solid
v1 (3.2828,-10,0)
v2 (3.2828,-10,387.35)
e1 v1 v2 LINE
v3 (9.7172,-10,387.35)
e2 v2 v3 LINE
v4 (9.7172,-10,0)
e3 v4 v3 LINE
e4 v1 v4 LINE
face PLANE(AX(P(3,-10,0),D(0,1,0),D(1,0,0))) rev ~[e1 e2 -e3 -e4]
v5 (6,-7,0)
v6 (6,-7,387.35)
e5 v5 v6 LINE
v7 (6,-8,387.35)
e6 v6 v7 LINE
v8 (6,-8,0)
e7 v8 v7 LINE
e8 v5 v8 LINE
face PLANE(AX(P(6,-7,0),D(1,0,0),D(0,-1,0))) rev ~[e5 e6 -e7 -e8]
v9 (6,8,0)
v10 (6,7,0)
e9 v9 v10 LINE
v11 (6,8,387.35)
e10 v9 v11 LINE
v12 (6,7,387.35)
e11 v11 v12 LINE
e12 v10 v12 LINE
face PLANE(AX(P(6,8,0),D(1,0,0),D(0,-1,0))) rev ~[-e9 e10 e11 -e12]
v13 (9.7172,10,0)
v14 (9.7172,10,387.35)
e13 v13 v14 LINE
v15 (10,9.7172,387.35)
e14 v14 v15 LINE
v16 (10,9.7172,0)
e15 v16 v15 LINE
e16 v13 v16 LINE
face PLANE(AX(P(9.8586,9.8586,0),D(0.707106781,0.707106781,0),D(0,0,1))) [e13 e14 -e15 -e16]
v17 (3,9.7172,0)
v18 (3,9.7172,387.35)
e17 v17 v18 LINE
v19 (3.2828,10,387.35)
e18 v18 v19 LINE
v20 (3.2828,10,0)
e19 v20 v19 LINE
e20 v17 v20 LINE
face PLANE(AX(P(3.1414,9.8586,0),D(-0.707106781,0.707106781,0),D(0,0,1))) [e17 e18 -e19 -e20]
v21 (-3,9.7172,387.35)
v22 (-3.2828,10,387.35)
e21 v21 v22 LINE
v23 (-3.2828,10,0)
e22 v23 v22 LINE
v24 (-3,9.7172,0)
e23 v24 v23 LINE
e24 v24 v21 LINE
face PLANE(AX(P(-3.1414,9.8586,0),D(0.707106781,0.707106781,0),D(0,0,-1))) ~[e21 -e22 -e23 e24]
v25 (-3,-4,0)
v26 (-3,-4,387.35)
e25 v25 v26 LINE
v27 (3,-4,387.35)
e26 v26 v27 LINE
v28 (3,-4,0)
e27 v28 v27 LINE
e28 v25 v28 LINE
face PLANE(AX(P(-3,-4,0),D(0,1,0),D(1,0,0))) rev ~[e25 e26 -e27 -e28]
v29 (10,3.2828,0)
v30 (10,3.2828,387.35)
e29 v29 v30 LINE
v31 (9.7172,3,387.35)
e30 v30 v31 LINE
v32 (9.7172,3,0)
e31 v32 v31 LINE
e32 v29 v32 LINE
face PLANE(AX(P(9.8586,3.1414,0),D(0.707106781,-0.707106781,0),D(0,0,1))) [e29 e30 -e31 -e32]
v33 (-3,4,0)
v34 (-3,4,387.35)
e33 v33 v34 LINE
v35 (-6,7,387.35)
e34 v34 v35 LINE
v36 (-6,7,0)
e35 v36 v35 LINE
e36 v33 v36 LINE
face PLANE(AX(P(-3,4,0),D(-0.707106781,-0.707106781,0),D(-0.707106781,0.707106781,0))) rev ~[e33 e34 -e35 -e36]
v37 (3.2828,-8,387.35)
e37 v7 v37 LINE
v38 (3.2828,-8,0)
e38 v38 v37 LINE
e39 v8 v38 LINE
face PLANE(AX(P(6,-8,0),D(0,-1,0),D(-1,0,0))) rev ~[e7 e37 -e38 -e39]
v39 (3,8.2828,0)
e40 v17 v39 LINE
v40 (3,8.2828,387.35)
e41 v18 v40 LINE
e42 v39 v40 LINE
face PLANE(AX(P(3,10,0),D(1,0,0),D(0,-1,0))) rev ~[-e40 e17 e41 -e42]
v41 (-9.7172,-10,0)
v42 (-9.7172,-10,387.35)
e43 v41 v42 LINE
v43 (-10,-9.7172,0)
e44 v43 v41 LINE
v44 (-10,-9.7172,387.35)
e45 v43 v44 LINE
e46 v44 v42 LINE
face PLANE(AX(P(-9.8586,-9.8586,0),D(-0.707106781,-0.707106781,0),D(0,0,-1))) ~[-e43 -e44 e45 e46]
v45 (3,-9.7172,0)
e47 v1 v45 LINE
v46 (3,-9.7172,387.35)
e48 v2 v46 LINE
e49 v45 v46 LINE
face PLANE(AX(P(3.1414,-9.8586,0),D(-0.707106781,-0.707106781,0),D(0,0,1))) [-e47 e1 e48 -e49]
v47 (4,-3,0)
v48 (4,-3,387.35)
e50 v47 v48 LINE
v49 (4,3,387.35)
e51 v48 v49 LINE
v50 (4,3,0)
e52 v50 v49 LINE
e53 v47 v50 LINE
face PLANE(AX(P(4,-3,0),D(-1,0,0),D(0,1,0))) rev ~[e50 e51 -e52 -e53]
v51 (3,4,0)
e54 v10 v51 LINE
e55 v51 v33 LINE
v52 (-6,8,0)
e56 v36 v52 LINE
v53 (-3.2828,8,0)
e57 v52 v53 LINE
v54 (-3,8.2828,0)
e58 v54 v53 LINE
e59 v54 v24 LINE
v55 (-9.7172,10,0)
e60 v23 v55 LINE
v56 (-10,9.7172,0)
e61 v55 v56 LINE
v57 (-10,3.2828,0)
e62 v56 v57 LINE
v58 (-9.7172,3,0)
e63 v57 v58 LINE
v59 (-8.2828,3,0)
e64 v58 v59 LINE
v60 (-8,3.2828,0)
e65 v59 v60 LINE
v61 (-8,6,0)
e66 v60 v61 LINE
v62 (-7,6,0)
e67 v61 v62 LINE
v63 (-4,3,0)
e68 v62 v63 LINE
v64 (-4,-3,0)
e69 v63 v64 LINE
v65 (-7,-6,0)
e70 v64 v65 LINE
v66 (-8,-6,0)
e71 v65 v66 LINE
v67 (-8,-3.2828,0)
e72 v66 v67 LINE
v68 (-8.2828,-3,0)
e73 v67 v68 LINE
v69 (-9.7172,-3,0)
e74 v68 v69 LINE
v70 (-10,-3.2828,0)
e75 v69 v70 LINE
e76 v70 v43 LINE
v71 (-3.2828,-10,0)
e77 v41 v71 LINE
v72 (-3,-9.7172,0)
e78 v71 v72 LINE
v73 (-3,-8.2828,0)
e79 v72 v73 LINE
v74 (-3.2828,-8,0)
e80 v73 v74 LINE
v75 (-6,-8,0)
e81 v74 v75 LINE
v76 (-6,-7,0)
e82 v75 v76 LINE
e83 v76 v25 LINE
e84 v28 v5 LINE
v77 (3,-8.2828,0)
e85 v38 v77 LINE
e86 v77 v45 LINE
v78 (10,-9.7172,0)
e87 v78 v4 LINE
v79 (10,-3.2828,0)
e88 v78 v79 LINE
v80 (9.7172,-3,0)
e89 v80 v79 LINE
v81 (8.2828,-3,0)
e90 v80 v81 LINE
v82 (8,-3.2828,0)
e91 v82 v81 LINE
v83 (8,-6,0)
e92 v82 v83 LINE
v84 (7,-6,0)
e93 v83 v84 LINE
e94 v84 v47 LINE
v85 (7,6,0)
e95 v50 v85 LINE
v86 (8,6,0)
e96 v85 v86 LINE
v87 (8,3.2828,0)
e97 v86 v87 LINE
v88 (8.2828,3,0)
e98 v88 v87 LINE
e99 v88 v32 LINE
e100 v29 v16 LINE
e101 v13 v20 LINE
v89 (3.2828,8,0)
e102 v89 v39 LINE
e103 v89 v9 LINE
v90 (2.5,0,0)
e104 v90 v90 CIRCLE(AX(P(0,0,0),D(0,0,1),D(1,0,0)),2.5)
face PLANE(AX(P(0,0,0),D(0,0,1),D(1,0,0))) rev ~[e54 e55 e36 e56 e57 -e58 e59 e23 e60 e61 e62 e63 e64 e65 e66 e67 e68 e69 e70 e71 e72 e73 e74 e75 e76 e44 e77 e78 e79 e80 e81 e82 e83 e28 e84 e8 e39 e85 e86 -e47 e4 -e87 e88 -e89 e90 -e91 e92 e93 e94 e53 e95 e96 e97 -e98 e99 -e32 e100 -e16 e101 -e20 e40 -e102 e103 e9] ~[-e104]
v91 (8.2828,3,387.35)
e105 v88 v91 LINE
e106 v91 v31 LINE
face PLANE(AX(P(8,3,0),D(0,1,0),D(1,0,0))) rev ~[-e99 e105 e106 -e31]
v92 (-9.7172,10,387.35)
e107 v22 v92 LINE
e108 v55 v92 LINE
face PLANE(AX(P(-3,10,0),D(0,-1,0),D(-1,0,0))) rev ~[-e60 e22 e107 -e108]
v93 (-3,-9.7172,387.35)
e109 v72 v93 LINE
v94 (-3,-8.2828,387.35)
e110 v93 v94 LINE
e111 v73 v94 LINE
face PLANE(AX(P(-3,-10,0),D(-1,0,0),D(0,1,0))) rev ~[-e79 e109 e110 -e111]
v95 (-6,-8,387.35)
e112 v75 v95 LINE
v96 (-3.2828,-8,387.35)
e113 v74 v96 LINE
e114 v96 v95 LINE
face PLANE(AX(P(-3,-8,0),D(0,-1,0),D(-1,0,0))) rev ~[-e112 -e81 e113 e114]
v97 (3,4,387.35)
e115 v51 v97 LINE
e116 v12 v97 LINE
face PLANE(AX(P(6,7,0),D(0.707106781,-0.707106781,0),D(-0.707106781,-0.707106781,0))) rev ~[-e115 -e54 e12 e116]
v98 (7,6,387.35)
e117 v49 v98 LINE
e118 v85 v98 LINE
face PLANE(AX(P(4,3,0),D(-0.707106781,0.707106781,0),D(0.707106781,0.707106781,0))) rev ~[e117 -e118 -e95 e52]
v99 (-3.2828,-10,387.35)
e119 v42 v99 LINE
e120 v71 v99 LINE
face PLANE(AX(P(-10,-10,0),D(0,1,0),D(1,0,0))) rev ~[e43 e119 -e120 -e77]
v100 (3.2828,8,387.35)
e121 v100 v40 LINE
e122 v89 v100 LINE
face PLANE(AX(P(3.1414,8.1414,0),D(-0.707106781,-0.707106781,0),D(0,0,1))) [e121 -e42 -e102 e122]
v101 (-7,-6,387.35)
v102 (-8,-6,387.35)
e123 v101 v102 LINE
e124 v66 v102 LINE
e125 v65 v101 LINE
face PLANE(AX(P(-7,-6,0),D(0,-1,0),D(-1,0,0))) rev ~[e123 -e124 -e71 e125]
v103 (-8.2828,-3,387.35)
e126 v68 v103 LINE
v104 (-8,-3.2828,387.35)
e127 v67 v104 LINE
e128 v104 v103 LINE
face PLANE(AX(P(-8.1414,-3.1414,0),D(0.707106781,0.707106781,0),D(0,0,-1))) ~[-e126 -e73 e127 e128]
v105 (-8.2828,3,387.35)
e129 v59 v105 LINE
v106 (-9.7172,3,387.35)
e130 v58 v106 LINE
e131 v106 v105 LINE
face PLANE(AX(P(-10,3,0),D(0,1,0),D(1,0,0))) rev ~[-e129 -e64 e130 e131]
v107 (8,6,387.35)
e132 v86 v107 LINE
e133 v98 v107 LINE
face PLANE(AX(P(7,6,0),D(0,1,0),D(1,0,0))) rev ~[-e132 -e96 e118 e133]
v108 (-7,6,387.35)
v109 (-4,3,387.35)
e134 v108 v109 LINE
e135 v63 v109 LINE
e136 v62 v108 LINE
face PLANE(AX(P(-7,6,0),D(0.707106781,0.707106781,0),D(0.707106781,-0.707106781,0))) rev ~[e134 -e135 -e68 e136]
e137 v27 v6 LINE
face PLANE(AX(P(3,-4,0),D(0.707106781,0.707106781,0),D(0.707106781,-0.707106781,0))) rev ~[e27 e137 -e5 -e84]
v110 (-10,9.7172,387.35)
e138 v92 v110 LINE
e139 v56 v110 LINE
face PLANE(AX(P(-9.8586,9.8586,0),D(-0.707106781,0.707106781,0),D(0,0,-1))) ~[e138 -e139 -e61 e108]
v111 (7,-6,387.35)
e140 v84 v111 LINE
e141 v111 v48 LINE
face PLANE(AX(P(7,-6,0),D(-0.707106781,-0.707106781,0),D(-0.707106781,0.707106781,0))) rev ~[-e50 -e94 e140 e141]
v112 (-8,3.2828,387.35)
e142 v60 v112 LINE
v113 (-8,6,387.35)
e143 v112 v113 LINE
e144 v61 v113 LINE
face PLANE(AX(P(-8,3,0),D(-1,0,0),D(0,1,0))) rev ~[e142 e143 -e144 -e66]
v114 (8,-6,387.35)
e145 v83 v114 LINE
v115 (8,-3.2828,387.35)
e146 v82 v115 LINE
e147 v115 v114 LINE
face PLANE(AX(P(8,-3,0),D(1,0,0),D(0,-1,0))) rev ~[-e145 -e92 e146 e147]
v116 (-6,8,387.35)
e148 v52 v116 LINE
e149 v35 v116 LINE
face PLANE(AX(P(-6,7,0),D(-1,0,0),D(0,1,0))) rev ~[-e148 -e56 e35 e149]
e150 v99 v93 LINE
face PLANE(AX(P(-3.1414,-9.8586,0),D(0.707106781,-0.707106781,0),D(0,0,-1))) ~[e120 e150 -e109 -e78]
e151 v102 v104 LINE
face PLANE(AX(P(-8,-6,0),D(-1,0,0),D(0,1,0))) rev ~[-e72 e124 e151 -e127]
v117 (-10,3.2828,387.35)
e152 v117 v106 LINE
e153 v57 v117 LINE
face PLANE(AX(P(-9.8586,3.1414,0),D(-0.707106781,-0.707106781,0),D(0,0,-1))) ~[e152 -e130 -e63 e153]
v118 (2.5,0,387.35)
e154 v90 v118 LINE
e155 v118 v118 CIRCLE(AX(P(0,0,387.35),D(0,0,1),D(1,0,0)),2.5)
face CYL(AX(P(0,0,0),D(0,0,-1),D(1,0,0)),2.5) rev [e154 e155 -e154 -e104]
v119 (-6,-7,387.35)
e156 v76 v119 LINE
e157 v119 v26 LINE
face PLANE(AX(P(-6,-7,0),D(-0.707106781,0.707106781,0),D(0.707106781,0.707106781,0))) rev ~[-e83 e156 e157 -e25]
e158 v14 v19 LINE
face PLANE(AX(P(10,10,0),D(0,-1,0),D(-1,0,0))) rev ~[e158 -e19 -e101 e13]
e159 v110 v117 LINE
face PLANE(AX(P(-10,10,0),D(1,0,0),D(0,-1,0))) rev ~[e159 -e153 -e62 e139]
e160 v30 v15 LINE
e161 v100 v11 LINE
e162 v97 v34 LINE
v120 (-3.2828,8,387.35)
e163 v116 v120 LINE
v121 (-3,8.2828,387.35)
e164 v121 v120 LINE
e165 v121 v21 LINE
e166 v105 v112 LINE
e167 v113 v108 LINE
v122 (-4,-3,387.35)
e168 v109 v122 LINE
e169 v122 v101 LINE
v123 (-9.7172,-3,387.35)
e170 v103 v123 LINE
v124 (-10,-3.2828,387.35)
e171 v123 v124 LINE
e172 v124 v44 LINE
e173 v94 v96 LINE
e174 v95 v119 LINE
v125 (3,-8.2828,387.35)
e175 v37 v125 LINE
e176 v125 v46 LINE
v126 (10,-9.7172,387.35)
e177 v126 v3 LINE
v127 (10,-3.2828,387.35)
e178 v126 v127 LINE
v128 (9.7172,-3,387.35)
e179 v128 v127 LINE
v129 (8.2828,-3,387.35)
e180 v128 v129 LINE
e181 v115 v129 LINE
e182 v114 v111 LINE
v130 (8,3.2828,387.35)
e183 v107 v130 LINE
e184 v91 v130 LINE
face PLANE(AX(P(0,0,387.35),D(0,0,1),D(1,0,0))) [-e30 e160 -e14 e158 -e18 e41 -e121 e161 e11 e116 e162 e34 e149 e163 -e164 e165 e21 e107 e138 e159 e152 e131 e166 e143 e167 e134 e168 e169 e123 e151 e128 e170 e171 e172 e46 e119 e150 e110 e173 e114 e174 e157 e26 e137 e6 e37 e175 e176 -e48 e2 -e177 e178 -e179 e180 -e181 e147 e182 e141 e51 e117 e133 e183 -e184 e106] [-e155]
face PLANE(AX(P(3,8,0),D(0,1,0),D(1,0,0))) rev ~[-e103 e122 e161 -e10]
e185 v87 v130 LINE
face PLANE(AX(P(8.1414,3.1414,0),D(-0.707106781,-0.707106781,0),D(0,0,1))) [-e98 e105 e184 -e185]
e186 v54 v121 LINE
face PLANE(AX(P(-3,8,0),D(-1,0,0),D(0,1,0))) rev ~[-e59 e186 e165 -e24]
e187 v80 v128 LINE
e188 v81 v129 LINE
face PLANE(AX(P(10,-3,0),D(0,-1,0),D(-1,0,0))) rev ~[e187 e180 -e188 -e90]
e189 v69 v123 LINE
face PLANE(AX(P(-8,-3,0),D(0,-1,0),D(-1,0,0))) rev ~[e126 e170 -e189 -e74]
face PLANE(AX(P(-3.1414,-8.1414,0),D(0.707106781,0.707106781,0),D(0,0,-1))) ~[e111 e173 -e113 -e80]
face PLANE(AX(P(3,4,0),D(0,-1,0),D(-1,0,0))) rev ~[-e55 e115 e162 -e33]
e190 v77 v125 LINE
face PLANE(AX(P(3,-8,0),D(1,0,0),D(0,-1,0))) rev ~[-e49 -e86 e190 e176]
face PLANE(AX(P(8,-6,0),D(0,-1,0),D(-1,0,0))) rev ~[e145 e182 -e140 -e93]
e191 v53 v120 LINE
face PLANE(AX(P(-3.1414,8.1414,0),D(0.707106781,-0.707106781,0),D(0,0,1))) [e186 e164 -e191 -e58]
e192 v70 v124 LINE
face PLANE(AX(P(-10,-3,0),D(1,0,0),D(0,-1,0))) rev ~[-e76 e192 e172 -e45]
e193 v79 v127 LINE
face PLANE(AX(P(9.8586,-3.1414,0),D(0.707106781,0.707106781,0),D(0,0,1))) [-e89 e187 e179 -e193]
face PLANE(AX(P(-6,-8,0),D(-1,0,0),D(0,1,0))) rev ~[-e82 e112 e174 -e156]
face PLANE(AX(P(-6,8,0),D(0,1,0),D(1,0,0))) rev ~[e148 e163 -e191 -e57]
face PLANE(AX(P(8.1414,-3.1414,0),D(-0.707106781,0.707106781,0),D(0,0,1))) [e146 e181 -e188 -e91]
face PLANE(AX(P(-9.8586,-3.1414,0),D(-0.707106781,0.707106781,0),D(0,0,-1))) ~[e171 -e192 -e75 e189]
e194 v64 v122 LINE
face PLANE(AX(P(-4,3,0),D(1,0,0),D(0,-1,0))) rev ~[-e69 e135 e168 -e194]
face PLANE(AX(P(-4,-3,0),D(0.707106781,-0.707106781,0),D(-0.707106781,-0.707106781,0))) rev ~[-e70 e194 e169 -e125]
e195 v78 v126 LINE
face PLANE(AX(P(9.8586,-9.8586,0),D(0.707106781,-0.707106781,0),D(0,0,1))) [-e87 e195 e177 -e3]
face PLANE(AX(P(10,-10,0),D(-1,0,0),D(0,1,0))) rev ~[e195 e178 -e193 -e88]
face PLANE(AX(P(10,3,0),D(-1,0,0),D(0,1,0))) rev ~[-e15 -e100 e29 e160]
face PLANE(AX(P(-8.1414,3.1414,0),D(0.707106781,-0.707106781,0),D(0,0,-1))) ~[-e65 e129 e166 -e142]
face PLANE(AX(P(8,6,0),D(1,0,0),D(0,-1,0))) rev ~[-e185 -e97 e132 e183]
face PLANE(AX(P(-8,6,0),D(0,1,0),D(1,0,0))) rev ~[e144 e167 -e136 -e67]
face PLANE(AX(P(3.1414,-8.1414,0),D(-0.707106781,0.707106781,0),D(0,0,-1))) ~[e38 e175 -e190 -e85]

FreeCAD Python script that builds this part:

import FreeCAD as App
import Part
import Sketcher

V = App.Vector
Q = App.Units.Quantity


def edges_at(feature, points):
    """Names of the edges that pass closest to the given points."""
    edges = feature.Shape.Edges
    near = lambda p: min(range(len(edges)), key=lambda i: edges[i].distToShape(Part.Vertex(*p))[0])
    return sorted({f"Edge{near(p) + 1}" for p in points})


def add_polygon(sketch, points):
    """Adds a closed chain of lines whose ends are joined by coincident constraints."""
    first, n = sketch.GeometryCount, len(points)
    for a, b in zip(points, points[1:] + points[:1]):
        sketch.addGeometry(Part.LineSegment(App.Vector(*a, 0), App.Vector(*b, 0)), False)
    for i in range(n):
        sketch.addConstraint(Sketcher.Constraint("Coincident", first + i, 2, first + (i + 1) % n, 1))

doc = App.newDocument("Part")
body = doc.addObject("PartDesign::Body", "Body")

sketch1 = body.newObject("Sketcher::SketchObject", "Sketch")
sketch1.AttachmentSupport = (doc.getObject("XY_Plane"), [""])
sketch1.MapMode = "FlatFace"
add_polygon(sketch1, [(-3, 8), (-3, 10), (-10, 10), (-10, 3), (-8, 3), (-8, 6), (-7, 6), (-4, 3), (-4, -3), (-7, -6), (-8, -6), (-8, -3), (-10, -3), (-10, -10), (-3, -10), (-3, -8), (-6, -8), (-6, -7), (-3, -4), (3, -4), (6, -7), (6, -8), (3, -8), (3, -10), (10, -10), (10, -3), (8, -3), (8, -6), (7, -6), (4, -3), (4, 3), (7, 6), (8, 6), (8, 3), (10, 3), (10, 10), (3, 10), (3, 8), (6, 8), (6, 7), (3, 4), (-3, 4), (-6, 7), (-6, 8)])
sketch1.addGeometry(Part.Circle(V(0, 0, 0), V(0, 0, 1), 2.5), False)
sketch1.addConstraint([
    Sketcher.Constraint("Vertical", 0),
    Sketcher.Constraint("Horizontal", 1),
    Sketcher.Constraint("Vertical", 2),
    Sketcher.Constraint("Horizontal", 3),
    Sketcher.Constraint("Vertical", 4),
    Sketcher.Constraint("Horizontal", 5),
    Sketcher.Constraint("Vertical", 7),
    Sketcher.Constraint("Horizontal", 9),
    Sketcher.Constraint("Vertical", 10),
    Sketcher.Constraint("Horizontal", 11),
    Sketcher.Constraint("Vertical", 12),
    Sketcher.Constraint("Horizontal", 13),
    Sketcher.Constraint("Vertical", 14),
    Sketcher.Constraint("Horizontal", 15),
    Sketcher.Constraint("Vertical", 16),
    Sketcher.Constraint("Horizontal", 18),
    Sketcher.Constraint("Vertical", 20),
    Sketcher.Constraint("Horizontal", 21),
    Sketcher.Constraint("Vertical", 22),
    Sketcher.Constraint("Horizontal", 23),
    Sketcher.Constraint("Vertical", 24),
    Sketcher.Constraint("Horizontal", 25),
    Sketcher.Constraint("Vertical", 26),
    Sketcher.Constraint("Horizontal", 27),
    Sketcher.Constraint("Vertical", 29),
    Sketcher.Constraint("Horizontal", 31),
    Sketcher.Constraint("Vertical", 32),
    Sketcher.Constraint("Horizontal", 33),
    Sketcher.Constraint("Vertical", 34),
    Sketcher.Constraint("Horizontal", 35),
    Sketcher.Constraint("Vertical", 36),
    Sketcher.Constraint("Horizontal", 37),
    Sketcher.Constraint("Vertical", 38),
    Sketcher.Constraint("Horizontal", 40),
    Sketcher.Constraint("Vertical", 42),
    Sketcher.Constraint("Horizontal", 43),
    Sketcher.Constraint("Coincident", 44, 3, -1, 1),
    Sketcher.Constraint("Symmetric", 0, 2, 22, 2, -1, 1),
    Sketcher.Constraint("Symmetric", 2, 2, 24, 2, -1, 1),
    Sketcher.Constraint("Symmetric", 4, 2, 26, 2, -1, 1),
    Sketcher.Constraint("Symmetric", 6, 2, 28, 2, -1, 1),
    Sketcher.Constraint("Symmetric", 8, 2, 30, 2, -1, 1),
    Sketcher.Constraint("Symmetric", 10, 2, 32, 2, -1, 1),
    Sketcher.Constraint("Symmetric", 12, 2, 34, 2, -1, 1),
    Sketcher.Constraint("Symmetric", 14, 2, 36, 2, -1, 1),
    Sketcher.Constraint("Symmetric", 16, 2, 38, 2, -1, 1),
    Sketcher.Constraint("Symmetric", 17, 2, 39, 2, -1, 1),
    Sketcher.Constraint("Symmetric", 19, 2, 41, 2, -1, 1),
    Sketcher.Constraint("Symmetric", 16, 2, 19, 2, -2),
    Sketcher.Constraint("Symmetric", 14, 2, 21, 2, -2),
    Sketcher.Constraint("Symmetric", 12, 2, 23, 2, -2),
    Sketcher.Constraint("Symmetric", 10, 2, 25, 2, -2),
    Sketcher.Constraint("Symmetric", 8, 2, 27, 2, -2),
    Sketcher.Constraint("Perpendicular", 6, 8),
    Sketcher.Constraint("Parallel", 8, 17),
    Sketcher.Constraint("Perpendicular", 17, 19),
    Sketcher.Constraint("Parallel", 19, 28),
    Sketcher.Constraint("Perpendicular", 28, 30),
    Sketcher.Constraint("Perpendicular", 39, 41),
    Sketcher.Constraint("Horizontal", 3, 2, 6, 2),
    Sketcher.Constraint("Horizontal", 7, 2, 10, 2),
    Sketcher.Constraint("Horizontal", 37, 2, 42, 2),
    Sketcher.Constraint("Vertical", 14, 2, 17, 2),
    Sketcher.Constraint("Equal", 33, 0),
    Sketcher.Constraint("Equal", 35, 2),
    Sketcher.Constraint("Equal", 43, 4),
    Sketcher.Constraint("Equal", 40, 7),
    Sketcher.Constraint("Equal", 31, 16),
    Sketcher.Constraint("Diameter", 44, Q("5 mm")),
    Sketcher.Constraint("DistanceX", 1, 2, 1, 1, Q("7 mm")),
    Sketcher.Constraint("DistanceX", 3, 1, 3, 2, Q("2 mm")),
    Sketcher.Constraint("DistanceX", 5, 1, 5, 2, Q("1 mm")),
    Sketcher.Constraint("DistanceX", 15, 2, 15, 1, Q("3 mm")),
    Sketcher.Constraint("DistanceX", 18, 1, 18, 2, Q("6 mm")),
])
pad1 = body.newObject("PartDesign::Pad", "Pad")
pad1.Profile = sketch1
pad1.Length = 387.35
doc.recompute()

chamfer = body.newObject("PartDesign::Chamfer", "Chamfer")
chamfer.Base = (pad1, edges_at(pad1, [
    (-8, -3, 193.675),
    (-8, 3, 193.675),
    (-10, 3, 193.675),
    (-10, 10, 193.675),
    (-3, 10, 193.675),
    (-3, 8, 193.675),
    (3, 8, 193.675),
    (3, 10, 193.675),
    (10, 10, 193.675),
    (10, 3, 193.675),
    (8, 3, 193.675),
    (8, -3, 193.675),
    (10, -3, 193.675),
    (10, -10, 193.675),
    (3, -10, 193.675),
    (3, -8, 193.675),
    (-3, -8, 193.675),
    (-3, -10, 193.675),
    (-10, -10, 193.675),
    (-10, -3, 193.675),
]))
chamfer.Size = 0.2828

doc.recompute()
